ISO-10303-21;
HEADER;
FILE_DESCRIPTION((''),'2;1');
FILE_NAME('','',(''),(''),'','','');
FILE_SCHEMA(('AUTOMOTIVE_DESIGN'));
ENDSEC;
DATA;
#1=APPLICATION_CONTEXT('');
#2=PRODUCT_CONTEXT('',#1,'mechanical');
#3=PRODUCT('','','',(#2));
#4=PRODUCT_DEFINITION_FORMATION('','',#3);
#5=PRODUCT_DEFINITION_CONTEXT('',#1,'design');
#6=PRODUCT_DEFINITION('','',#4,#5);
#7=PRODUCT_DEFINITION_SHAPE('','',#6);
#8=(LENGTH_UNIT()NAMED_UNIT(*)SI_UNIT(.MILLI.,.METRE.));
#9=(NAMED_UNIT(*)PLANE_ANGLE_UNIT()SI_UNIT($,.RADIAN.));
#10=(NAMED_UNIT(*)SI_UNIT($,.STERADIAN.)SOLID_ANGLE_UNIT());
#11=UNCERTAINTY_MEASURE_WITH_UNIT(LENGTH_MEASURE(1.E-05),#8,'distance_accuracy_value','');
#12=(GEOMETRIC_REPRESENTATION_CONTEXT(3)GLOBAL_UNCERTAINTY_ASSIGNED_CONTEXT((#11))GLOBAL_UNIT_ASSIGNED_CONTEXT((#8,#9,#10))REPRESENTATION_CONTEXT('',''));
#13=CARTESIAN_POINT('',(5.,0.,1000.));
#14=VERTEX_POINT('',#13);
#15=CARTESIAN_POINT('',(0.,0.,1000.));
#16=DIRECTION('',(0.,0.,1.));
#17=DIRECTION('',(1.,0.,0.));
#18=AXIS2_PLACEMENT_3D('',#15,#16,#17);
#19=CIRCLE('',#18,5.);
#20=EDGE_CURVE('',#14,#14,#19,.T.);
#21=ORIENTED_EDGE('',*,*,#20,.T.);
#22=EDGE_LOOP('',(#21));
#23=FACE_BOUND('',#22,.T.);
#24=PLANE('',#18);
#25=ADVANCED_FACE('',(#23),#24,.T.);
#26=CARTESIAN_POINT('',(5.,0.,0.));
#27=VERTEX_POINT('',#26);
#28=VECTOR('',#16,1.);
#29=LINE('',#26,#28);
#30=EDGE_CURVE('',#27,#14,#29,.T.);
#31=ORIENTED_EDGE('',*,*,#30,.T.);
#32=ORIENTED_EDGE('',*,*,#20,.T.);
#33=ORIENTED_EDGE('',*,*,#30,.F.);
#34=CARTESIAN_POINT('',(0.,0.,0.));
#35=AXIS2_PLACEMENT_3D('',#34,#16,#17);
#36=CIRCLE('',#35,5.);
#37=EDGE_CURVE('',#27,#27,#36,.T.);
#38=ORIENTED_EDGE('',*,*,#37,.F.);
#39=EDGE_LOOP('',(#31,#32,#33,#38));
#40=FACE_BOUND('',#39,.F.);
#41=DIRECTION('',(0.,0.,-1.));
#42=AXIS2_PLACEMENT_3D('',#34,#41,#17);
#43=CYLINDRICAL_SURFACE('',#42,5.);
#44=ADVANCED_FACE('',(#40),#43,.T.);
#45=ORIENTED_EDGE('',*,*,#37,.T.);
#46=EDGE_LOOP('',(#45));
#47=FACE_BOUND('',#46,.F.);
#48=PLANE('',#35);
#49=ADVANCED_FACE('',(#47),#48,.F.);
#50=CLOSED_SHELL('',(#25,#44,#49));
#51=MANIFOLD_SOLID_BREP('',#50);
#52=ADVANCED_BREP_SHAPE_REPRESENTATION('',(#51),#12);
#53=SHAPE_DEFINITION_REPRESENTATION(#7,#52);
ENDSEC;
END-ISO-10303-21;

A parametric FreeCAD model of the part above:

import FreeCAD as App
import Part
import Sketcher
from FreeCAD import Vector
Q = App.Units.Quantity

doc = App.newDocument("Part")
body = doc.addObject("PartDesign::Body", "Body")

sketch1 = body.newObject("Sketcher::SketchObject", "Sketch")
sketch1.AttachmentSupport = (doc.getObject("XY_Plane"), [""])
sketch1.MapMode = "FlatFace"
sketch1.addGeometry(Part.Circle(Vector(0, 0, 0), Vector(0, 0, 1), 5), False)
sketch1.addConstraint([
    Sketcher.Constraint("Coincident", 0, 3, -1, 1),
    Sketcher.Constraint("Diameter", 0, Q("10 mm")),
])
pad1 = body.newObject("PartDesign::Pad", "Pad")
pad1.Profile = sketch1
pad1.Length = 1000

doc.recompute()
